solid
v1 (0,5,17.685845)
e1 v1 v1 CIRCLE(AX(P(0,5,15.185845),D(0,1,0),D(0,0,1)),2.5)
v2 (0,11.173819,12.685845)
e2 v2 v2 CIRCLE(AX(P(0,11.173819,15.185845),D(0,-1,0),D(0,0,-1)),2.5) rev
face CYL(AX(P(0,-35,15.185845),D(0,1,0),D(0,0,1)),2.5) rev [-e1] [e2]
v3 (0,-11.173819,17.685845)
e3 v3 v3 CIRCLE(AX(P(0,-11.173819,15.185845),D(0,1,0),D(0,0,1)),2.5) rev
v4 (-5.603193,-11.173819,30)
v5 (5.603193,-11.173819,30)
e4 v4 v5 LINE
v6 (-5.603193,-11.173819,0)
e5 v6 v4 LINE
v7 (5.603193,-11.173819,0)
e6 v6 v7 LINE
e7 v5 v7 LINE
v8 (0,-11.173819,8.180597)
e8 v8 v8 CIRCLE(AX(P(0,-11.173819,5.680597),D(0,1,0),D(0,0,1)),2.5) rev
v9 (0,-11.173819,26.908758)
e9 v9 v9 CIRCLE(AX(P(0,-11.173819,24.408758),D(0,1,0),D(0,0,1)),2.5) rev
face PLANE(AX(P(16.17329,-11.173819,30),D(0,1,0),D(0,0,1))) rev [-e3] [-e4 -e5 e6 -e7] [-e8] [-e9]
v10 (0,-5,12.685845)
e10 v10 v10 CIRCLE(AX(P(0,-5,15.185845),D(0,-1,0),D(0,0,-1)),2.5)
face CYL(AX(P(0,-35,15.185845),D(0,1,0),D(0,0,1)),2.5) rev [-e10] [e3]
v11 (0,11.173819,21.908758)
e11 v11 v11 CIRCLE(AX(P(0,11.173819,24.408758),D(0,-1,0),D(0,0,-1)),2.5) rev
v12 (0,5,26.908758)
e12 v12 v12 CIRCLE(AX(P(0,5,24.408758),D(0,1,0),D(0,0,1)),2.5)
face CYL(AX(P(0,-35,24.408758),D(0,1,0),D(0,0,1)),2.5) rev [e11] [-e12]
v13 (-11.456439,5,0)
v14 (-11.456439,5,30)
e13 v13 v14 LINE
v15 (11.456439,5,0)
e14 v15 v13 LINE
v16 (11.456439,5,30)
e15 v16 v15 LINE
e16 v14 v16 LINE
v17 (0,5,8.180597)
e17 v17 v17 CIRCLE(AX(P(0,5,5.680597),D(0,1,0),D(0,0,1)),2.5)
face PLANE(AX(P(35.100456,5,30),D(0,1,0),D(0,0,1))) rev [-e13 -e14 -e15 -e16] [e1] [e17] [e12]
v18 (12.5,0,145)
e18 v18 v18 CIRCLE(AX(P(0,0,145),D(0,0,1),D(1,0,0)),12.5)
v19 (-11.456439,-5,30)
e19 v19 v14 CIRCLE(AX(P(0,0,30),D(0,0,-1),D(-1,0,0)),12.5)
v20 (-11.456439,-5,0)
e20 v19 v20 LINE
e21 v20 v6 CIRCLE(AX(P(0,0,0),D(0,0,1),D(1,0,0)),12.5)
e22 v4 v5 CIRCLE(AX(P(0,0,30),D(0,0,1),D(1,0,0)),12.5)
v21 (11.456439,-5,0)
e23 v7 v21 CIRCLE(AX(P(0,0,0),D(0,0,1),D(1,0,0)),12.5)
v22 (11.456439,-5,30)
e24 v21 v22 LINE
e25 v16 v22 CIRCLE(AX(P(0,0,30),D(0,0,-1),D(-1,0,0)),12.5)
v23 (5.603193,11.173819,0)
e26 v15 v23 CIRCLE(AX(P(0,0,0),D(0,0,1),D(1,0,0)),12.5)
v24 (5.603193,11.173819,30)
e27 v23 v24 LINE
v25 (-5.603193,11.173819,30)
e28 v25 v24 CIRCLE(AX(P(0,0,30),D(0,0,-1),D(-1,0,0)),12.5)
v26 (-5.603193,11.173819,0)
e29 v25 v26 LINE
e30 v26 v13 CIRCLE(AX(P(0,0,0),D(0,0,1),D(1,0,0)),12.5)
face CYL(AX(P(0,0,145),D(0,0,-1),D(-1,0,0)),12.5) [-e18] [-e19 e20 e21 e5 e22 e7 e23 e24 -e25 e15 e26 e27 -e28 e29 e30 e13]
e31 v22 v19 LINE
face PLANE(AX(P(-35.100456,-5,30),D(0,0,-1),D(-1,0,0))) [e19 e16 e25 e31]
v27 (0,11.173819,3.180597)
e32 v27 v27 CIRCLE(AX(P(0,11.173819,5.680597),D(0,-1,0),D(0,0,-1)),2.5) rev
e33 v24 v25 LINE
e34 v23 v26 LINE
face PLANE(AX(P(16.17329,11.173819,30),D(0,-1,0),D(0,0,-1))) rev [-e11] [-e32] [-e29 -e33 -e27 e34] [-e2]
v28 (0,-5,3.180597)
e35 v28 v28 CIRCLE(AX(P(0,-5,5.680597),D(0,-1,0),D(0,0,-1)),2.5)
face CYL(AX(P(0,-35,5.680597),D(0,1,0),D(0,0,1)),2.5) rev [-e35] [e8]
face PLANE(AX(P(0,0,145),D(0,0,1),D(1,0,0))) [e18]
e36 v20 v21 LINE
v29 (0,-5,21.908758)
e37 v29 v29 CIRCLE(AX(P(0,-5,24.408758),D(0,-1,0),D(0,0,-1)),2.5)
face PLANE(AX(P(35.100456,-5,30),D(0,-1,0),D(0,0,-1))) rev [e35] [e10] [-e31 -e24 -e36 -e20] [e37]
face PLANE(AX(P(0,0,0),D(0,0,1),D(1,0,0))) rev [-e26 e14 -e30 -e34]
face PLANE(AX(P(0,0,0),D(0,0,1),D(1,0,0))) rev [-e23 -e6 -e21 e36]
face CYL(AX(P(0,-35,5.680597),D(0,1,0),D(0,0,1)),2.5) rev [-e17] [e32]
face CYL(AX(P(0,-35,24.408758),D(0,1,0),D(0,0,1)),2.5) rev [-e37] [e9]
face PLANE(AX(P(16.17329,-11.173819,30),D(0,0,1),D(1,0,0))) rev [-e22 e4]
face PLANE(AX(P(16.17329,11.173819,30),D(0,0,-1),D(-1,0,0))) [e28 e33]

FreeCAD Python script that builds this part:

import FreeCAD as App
import Part
import Sketcher
from FreeCAD import Vector
Q = App.Units.Quantity


def add_polygon(sketch, points):
    """Adds a closed chain of lines whose ends are joined by coincident constraints."""
    first, n = sketch.GeometryCount, len(points)
    for a, b in zip(points, points[1:] + points[:1]):
        sketch.addGeometry(Part.LineSegment(App.Vector(*a, 0), App.Vector(*b, 0)), False)
    for i in range(n):
        sketch.addConstraint(Sketcher.Constraint("Coincident", first + i, 2, first + (i + 1) % n, 1))

doc = App.newDocument("Part")
body = doc.addObject("PartDesign::Body", "Body")

sketch1 = body.newObject("Sketcher::SketchObject", "Sketch")
sketch1.AttachmentSupport = (doc.getObject("XY_Plane"), [""])
sketch1.MapMode = "FlatFace"
sketch1.addGeometry(Part.Circle(Vector(0, 0, 0), Vector(0, 0, 1), 12), False)
sketch1.addConstraint(Sketcher.Constraint("Coincident", 0, 3, -1, 1))
sketch1.addConstraint(Sketcher.Constraint("Diameter", 0, Q("25 mm")))
pad1 = body.newObject("PartDesign::Pad", "Pad")
pad1.Profile = sketch1
pad1.Length = 145

sketch2 = body.newObject("Sketcher::SketchObject", "Sketch001")
sketch2.AttachmentSupport = (doc.getObject("XY_Plane"), [""])
sketch2.MapMode = "FlatFace"
add_polygon(sketch2, [(35, 5), (35, -5), (-35, -5), (-35, 5)])
sketch2.addConstraint(Sketcher.Constraint("Vertical", 0))
sketch2.addConstraint(Sketcher.Constraint("Horizontal", 1))
sketch2.addConstraint(Sketcher.Constraint("Vertical", 2))
sketch2.addConstraint(Sketcher.Constraint("Horizontal", 3))
sketch2.addConstraint(Sketcher.Constraint("Symmetric", 0, 2, 2, 2, -1, 1))
sketch2.addConstraint(Sketcher.Constraint("DistanceY", 0, 2, 0, 1, Q("10 mm")))
sketch2.addConstraint(Sketcher.Constraint("DistanceX", 1, 2, 1, 1, Q("70.200912 mm")))
pocket1 = body.newObject("PartDesign::Pocket", "Pocket")
pocket1.Profile = sketch2
pocket1.Length = 30
pocket1.Reversed = True

sketch3 = body.newObject("Sketcher::SketchObject", "Sketch002")
sketch3.AttachmentSupport = (doc.getObject("XZ_Plane"), [""])
sketch3.MapMode = "FlatFace"
sketch3.addGeometry(Part.Circle(Vector(0, 5.7, 0), Vector(0, 0, 1), 2.5), False)
sketch3.addGeometry(Part.Circle(Vector(0, 15.2, 0), Vector(0, 0, 1), 2.5), False)
sketch3.addGeometry(Part.Circle(Vector(0, 24.4, 0), Vector(0, 0, 1), 2.5), False)
sketch3.addConstraint(Sketcher.Constraint("Equal", 0, 1))
sketch3.addConstraint(Sketcher.Constraint("Equal", 1, 2))
sketch3.addConstraint(Sketcher.Constraint("PointOnObject", 0, 3, -2))
sketch3.addConstraint(Sketcher.Constraint("PointOnObject", 1, 3, -2))
sketch3.addConstraint(Sketcher.Constraint("PointOnObject", 2, 3, -2))
sketch3.addConstraint(Sketcher.Constraint("Diameter", 0, Q("5 mm")))
sketch3.addConstraint(Sketcher.Constraint("DistanceY", -1, 1, 2, 3, Q("24.408758 mm")))
sketch3.addConstraint(Sketcher.Constraint("DistanceY", 0, 3, 2, 3, Q("18.728161 mm")))
sketch3.addConstraint(Sketcher.Constraint("DistanceY", -1, 1, 1, 3, Q("15.185845 mm")))
pocket2 = body.newObject("PartDesign::Pocket", "Pocket001")
pocket2.Profile = sketch3
pocket2.Length = 70
pocket2.Midplane = True

sketch4 = body.newObject("Sketcher::SketchObject", "Sketch003")
sketch4.AttachmentSupport = (doc.getObject("XY_Plane"), [""])
sketch4.MapMode = "FlatFace"
add_polygon(sketch4, [(16, -11), (16, -18), (-18, -18), (-18, -11)])
add_polygon(sketch4, [(16, 18), (16, 11), (-18, 11), (-18, 18)])
sketch4.addConstraint(Sketcher.Constraint("Vertical", 0))
sketch4.addConstraint(Sketcher.Constraint("Horizontal", 1))
sketch4.addConstraint(Sketcher.Constraint("Vertical", 2))
sketch4.addConstraint(Sketcher.Constraint("Horizontal", 3))
sketch4.addConstraint(Sketcher.Constraint("Vertical", 4))
sketch4.addConstraint(Sketcher.Constraint("Horizontal", 5))
sketch4.addConstraint(Sketcher.Constraint("Vertical", 6))
sketch4.addConstraint(Sketcher.Constraint("Horizontal", 7))
sketch4.addConstraint(Sketcher.Constraint("Symmetric", 3, 2, 4, 2, -1))
sketch4.addConstraint(Sketcher.Constraint("Symmetric", 1, 2, 6, 2, -1))
sketch4.addConstraint(Sketcher.Constraint("DistanceX", 1, 2, 1, 1, Q("33.796427 mm")))
sketch4.addConstraint(Sketcher.Constraint("DistanceY", 0, 2, 0, 1, Q("6.499313 mm")))
sketch4.addConstraint(Sketcher.Constraint("DistanceX", -1, 1, 0, 2, Q("16.17329 mm")))
sketch4.addConstraint(Sketcher.Constraint("DistanceY", 0, 2, -1, 1, Q("17.673132 mm")))
pocket3 = body.newObject("PartDesign::Pocket", "Pocket002")
pocket3.Profile = sketch4
pocket3.Length = 30
pocket3.Reversed = True

doc.recompute()
